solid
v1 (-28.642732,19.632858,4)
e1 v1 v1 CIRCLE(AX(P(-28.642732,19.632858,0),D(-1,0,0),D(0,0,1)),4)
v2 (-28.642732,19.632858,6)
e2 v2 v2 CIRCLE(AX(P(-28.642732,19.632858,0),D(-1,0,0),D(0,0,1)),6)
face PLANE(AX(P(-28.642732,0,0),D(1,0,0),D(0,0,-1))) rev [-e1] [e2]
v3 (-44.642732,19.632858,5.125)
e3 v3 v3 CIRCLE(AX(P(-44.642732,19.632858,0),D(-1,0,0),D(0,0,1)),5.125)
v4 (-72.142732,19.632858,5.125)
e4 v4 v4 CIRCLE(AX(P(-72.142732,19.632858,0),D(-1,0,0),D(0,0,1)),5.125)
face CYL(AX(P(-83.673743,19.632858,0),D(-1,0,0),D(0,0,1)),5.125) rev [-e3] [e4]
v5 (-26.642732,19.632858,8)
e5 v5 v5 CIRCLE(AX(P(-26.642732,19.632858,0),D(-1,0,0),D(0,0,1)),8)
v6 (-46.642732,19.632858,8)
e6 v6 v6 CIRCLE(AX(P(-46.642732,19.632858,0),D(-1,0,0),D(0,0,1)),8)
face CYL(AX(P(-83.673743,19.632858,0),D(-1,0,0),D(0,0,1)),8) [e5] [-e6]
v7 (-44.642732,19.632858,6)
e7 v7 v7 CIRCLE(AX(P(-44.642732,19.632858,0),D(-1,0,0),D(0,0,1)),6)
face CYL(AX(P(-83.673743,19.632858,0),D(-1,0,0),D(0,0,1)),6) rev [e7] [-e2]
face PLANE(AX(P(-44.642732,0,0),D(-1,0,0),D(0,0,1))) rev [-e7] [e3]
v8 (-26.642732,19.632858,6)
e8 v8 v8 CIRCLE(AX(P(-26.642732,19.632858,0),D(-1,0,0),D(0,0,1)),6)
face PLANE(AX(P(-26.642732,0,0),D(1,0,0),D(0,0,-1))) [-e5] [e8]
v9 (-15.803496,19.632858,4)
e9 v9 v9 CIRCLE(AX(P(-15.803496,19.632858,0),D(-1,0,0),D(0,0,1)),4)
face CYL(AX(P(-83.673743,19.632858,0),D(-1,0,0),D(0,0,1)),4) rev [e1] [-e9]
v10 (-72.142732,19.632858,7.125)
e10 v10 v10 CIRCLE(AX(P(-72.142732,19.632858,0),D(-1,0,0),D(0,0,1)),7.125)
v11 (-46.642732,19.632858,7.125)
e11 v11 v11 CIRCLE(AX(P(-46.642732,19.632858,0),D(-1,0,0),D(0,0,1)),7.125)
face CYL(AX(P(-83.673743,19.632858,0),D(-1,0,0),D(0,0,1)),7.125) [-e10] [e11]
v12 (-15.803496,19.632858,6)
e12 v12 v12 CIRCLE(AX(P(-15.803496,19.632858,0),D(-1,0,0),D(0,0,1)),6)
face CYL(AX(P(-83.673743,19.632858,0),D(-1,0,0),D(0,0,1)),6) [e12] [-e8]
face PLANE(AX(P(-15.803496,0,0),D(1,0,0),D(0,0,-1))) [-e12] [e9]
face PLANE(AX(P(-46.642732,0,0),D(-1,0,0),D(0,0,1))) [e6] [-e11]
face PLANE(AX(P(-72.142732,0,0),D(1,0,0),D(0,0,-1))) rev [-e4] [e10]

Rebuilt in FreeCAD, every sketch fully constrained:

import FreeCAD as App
import Part
import Sketcher


def add_polygon(sketch, points):
    """Adds a closed chain of lines whose ends are joined by coincident constraints."""
    first, n = sketch.GeometryCount, len(points)
    for a, b in zip(points, points[1:] + points[:1]):
        sketch.addGeometry(Part.LineSegment(App.Vector(*a, 0), App.Vector(*b, 0)), False)
    for i in range(n):
        sketch.addConstraint(Sketcher.Constraint("Coincident", first + i, 2, first + (i + 1) % n, 1))

doc = App.newDocument("Part")
body = doc.addObject("PartDesign::Body", "Body")

sketch1 = doc.addObject("Sketcher::SketchObject", "Sketch")
body.addObject(sketch1)
sketch1.AttachmentSupport = (doc.XY_Plane, [""])
sketch1.MapMode = "FlatFace"
add_polygon(sketch1, [(-44.642732, 24.757858), (-44.642732, 25.632858), (-28.642732, 25.632858), (-28.642732, 23.632858), (-15.803496, 23.632858), (-15.803496, 25.632858), (-26.642732, 25.632858), (-26.642732, 27.632858), (-46.642732, 27.632858), (-46.642732, 26.757858), (-72.142732, 26.757858), (-72.142732, 24.757858)])
sketch1.addGeometry(Part.LineSegment(App.Vector(-72.142732, 19.632858, 0), App.Vector(-15.803496, 19.632858, 0)), True)
sketch1.addConstraint([
    Sketcher.Constraint("Vertical", 0),
    Sketcher.Constraint("Horizontal", 1),
    Sketcher.Constraint("Vertical", 2),
    Sketcher.Constraint("Horizontal", 3),
    Sketcher.Constraint("Vertical", 4),
    Sketcher.Constraint("Horizontal", 5),
    Sketcher.Constraint("Vertical", 6),
    Sketcher.Constraint("Horizontal", 7),
    Sketcher.Constraint("Vertical", 8),
    Sketcher.Constraint("Horizontal", 9),
    Sketcher.Constraint("Vertical", 10),
    Sketcher.Constraint("Horizontal", 11),
    Sketcher.Constraint("Horizontal", 12),
    Sketcher.Constraint("Horizontal", 1, 2, 4, 2),
    Sketcher.Constraint("Vertical", 10, 2, 12, 1),
    Sketcher.Constraint("Vertical", 4, 2, 12, 2),
    Sketcher.Constraint("Equal", 4, 6),
    Sketcher.Constraint("Equal", 0, 8),
    Sketcher.Constraint("DistanceX", 1, 1, 1, 2, 16.0),
    Sketcher.Constraint("DistanceX", 7, 2, 7, 1, 20.0),
    Sketcher.Constraint("DistanceY", 2, 2, 2, 1, 2.0),
    Sketcher.Constraint("DistanceX", 9, 2, 9, 1, 25.5),
    Sketcher.Constraint("DistanceX", 11, 1, 11, 2, 27.5),
    Sketcher.Constraint("DistanceY", 12, 1, 7, 2, 8.0),
    Sketcher.Constraint("DistanceY", 0, 1, 0, 2, 0.875),
    Sketcher.Constraint("DistanceX", 3, 1, 3, 2, 12.839236),
    Sketcher.Constraint("DistanceX", 0, 2, -1, 1, 44.642732),
    Sketcher.Constraint("DistanceY", -1, 1, 0, 2, 25.632858),
])
revolution = doc.addObject("PartDesign::Revolution", "Revolution")
body.addObject(revolution)
revolution.Profile = sketch1
revolution.ReferenceAxis = (sketch1, ["Axis0"])
revolution.Angle = 360

doc.recompute()
